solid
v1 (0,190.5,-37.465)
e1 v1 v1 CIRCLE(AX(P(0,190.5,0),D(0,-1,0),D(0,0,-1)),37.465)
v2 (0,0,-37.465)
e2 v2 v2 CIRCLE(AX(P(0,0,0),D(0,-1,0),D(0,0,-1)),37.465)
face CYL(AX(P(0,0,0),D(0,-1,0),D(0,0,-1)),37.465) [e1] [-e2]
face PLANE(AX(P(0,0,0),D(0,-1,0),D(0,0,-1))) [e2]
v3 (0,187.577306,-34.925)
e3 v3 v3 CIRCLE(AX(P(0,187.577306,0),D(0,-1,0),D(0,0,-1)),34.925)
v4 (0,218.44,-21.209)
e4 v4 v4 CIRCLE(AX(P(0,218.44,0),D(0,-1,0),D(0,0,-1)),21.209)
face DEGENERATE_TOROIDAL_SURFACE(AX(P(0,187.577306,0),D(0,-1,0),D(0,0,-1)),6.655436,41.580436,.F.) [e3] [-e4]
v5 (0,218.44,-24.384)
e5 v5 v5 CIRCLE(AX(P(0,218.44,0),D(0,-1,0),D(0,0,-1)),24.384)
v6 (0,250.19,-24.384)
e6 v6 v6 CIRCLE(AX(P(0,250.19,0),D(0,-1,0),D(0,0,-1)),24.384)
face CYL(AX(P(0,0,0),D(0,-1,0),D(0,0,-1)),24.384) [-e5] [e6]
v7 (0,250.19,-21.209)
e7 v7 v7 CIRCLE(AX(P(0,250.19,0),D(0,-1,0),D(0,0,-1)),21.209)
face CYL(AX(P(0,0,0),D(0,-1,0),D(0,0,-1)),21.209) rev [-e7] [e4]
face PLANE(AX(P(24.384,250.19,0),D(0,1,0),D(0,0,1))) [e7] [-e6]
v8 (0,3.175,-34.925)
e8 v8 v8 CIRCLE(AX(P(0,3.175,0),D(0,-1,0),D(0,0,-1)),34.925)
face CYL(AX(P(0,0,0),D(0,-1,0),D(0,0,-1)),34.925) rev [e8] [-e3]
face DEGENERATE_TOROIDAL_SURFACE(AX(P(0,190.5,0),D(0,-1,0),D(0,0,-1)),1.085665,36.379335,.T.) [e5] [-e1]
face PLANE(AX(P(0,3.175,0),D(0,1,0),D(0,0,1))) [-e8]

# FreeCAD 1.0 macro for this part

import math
import FreeCAD as App
import Part
import Sketcher

V = App.Vector
Q = App.Units.Quantity

doc = App.newDocument("Part")
body = doc.addObject("PartDesign::Body", "Body")

# Sketch on XY plane
sketch1 = body.newObject("Sketcher::SketchObject", "Sketch")
sketch1.AttachmentSupport = (doc.getObject("XY_Plane"), [""])
sketch1.MapMode = "FlatFace"
sketch1.addGeometry(Part.LineSegment(V(0, 0, 0), V(37.5, 0, 0)), False)
sketch1.addGeometry(Part.LineSegment(V(37.5, 0, 0), V(37.5, 190.5, 0)), False)
sketch1.addGeometry(Part.ArcOfCircle(Part.Circle(V(1.1, 190.5, 0), V(0, 0, 1), 36.4), math.radians(0), math.radians(50)), False)
sketch1.addGeometry(Part.LineSegment(V(24.4, 218.4, 0), V(24.4, 250.2, 0)), False)
sketch1.addGeometry(Part.LineSegment(V(24.4, 250.2, 0), V(21.2, 250.2, 0)), False)
sketch1.addGeometry(Part.LineSegment(V(21.2, 250.2, 0), V(21.2, 218.4, 0)), False)
sketch1.addGeometry(Part.ArcOfCircle(Part.Circle(V(-6.7, 187.6, 0), V(0, 0, 1), 41.6), math.radians(0), math.radians(48)), False)
sketch1.addGeometry(Part.LineSegment(V(34.9, 187.6, 0), V(34.9, 3.2, 0)), False)
sketch1.addGeometry(Part.LineSegment(V(34.9, 3.2, 0), V(0, 3.2, 0)), False)
sketch1.addGeometry(Part.LineSegment(V(0, 3.2, 0), V(0, 0, 0)), False)
sketch1.addConstraint(Sketcher.Constraint("Coincident", 0, 2, 1, 1))
sketch1.addConstraint(Sketcher.Constraint("Tangent", 1, 2, 2, 1))
sketch1.addConstraint(Sketcher.Constraint("Coincident", 2, 2, 3, 1))
sketch1.addConstraint(Sketcher.Constraint("Coincident", 3, 2, 4, 1))
sketch1.addConstraint(Sketcher.Constraint("Coincident", 4, 2, 5, 1))
sketch1.addConstraint(Sketcher.Constraint("Coincident", 5, 2, 6, 2))
sketch1.addConstraint(Sketcher.Constraint("Tangent", 6, 1, 7, 1))
sketch1.addConstraint(Sketcher.Constraint("Coincident", 7, 2, 8, 1))
sketch1.addConstraint(Sketcher.Constraint("Coincident", 8, 2, 9, 1))
sketch1.addConstraint(Sketcher.Constraint("Coincident", 9, 2, 0, 1))
sketch1.addConstraint(Sketcher.Constraint("Horizontal", 0))
sketch1.addConstraint(Sketcher.Constraint("Vertical", 1))
sketch1.addConstraint(Sketcher.Constraint("Vertical", 3))
sketch1.addConstraint(Sketcher.Constraint("Horizontal", 4))
sketch1.addConstraint(Sketcher.Constraint("Vertical", 5))
sketch1.addConstraint(Sketcher.Constraint("Vertical", 7))
sketch1.addConstraint(Sketcher.Constraint("Horizontal", 8))
sketch1.addConstraint(Sketcher.Constraint("Vertical", 9))
sketch1.addConstraint(Sketcher.Constraint("Coincident", 9, 2, -1, 1))
sketch1.addConstraint(Sketcher.Constraint("Horizontal", 2, 2, 5, 2))
sketch1.addConstraint(Sketcher.Constraint("Equal", 4, 9))
sketch1.addConstraint(Sketcher.Constraint("DistanceY", 1, 1, 1, 2, Q("7.5 in")))
sketch1.addConstraint(Sketcher.Constraint("DistanceY", 3, 1, 3, 2, Q("1.25 in")))
sketch1.addConstraint(Sketcher.Constraint("DistanceY", -1, 1, 2, 2, Q("8.6 in")))
sketch1.addConstraint(Sketcher.Constraint("DistanceX", 6, 1, 1, 2, Q("0.1 in")))
sketch1.addConstraint(Sketcher.Constraint("DistanceX", 0, 1, 0, 2, Q("1.475 in")))
sketch1.addConstraint(Sketcher.Constraint("DistanceX", 4, 2, 4, 1, Q("0.125 in")))
sketch1.addConstraint(Sketcher.Constraint("DistanceX", -1, 1, 2, 2, Q("0.96 in")))
sketch1.addConstraint(Sketcher.Constraint("Radius", 6, Q("41.580436 mm")))
revolution = body.newObject("PartDesign::Revolution", "Revolution")
revolution.Profile = sketch1
revolution.ReferenceAxis = (sketch1, ["V_Axis"])
revolution.Angle = 360

doc.recompute()
